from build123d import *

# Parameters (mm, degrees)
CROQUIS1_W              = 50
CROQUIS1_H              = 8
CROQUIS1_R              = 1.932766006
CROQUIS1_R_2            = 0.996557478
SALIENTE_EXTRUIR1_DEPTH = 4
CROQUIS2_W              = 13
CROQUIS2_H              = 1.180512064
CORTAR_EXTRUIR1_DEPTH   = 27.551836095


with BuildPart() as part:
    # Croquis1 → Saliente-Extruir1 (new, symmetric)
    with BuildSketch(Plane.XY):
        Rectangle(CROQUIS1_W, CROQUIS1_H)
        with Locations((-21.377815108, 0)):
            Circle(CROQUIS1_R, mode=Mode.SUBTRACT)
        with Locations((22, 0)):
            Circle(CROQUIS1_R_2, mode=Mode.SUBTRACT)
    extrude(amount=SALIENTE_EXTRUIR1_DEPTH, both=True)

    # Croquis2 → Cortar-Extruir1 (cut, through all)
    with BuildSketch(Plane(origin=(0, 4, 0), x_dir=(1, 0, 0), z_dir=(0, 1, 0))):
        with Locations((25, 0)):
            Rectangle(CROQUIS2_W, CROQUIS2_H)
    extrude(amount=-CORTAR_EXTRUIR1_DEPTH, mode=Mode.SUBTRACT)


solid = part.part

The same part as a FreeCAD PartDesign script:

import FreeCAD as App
import Part
import Sketcher

V = App.Vector


def add_polygon(sketch, points):
    """Adds a closed chain of lines whose ends are joined by coincident constraints."""
    first, n = sketch.GeometryCount, len(points)
    for a, b in zip(points, points[1:] + points[:1]):
        sketch.addGeometry(Part.LineSegment(App.Vector(*a, 0), App.Vector(*b, 0)), False)
    for i in range(n):
        sketch.addConstraint(Sketcher.Constraint("Coincident", first + i, 2, first + (i + 1) % n, 1))

doc = App.newDocument("Part")
body = doc.addObject("PartDesign::Body", "Body")

sketch1 = body.newObject("Sketcher::SketchObject", "Sketch")
sketch1.AttachmentSupport = (doc.getObject("XY_Plane"), [""])
sketch1.MapMode = "FlatFace"
add_polygon(sketch1, [(-25, 4), (-25, -4), (25, -4), (25, 4)])
sketch1.addGeometry(Part.Circle(V(-21.4, 0, 0), V(0, 0, 1), 1.9), False)
sketch1.addGeometry(Part.Circle(V(22, 0, 0), V(0, 0, 1), 1), False)
sketch1.addConstraint(Sketcher.Constraint("Vertical", 0))
sketch1.addConstraint(Sketcher.Constraint("Horizontal", 1))
sketch1.addConstraint(Sketcher.Constraint("Vertical", 2))
sketch1.addConstraint(Sketcher.Constraint("Horizontal", 3))
sketch1.addConstraint(Sketcher.Constraint("Symmetric", 0, 2, 2, 2, -1, 1))
sketch1.addConstraint(Sketcher.Constraint("PointOnObject", 4, 3, -1))
sketch1.addConstraint(Sketcher.Constraint("PointOnObject", 5, 3, -1))
sketch1.addConstraint(Sketcher.Constraint("DistanceX", 1, 1, 1, 2, 50.0))
sketch1.addConstraint(Sketcher.Constraint("DistanceY", 0, 2, 0, 1, 8.0))
sketch1.addConstraint(Sketcher.Constraint("DistanceX", -1, 1, 5, 3, 22.0))
sketch1.addConstraint(Sketcher.Constraint("Diameter", 4, 3.865532))
sketch1.addConstraint(Sketcher.Constraint("Diameter", 5, 1.993115))
sketch1.addConstraint(Sketcher.Constraint("DistanceX", 4, 3, -1, 1, 21.377815))
pad1 = body.newObject("PartDesign::Pad", "Pad")
pad1.Profile = sketch1
pad1.Length = 8
pad1.Midplane = True

sketch2 = body.newObject("Sketcher::SketchObject", "Sketch001")
sketch2.AttachmentSupport = (doc.getObject("XZ_Plane"), [""])
sketch2.MapMode = "FlatFace"
sketch2.AttachmentOffset = App.Placement(V(0, 0, -4), App.Rotation())
add_polygon(sketch2, [(18.5, -0.6), (18.5, 0.6), (31.5, 0.6), (31.5, -0.6)])
sketch2.addConstraint(Sketcher.Constraint("Vertical", 0))
sketch2.addConstraint(Sketcher.Constraint("Horizontal", 1))
sketch2.addConstraint(Sketcher.Constraint("Vertical", 2))
sketch2.addConstraint(Sketcher.Constraint("Horizontal", 3))
sketch2.addConstraint(Sketcher.Constraint("DistanceX", 1, 1, 1, 2, 13.0))
sketch2.addConstraint(Sketcher.Constraint("DistanceX", -1, 1, 0, 2, 18.5))
sketch2.addConstraint(Sketcher.Constraint("DistanceY", 0, 1, 0, 2, 1.180512))
sketch2.addConstraint(Sketcher.Constraint("DistanceY", -1, 1, 0, 2, 0.590256))
pocket1 = body.newObject("PartDesign::Pocket", "Pocket")
pocket1.Profile = sketch2
pocket1.Type = "ThroughAll"
pocket1.Reversed = True

doc.recompute()
